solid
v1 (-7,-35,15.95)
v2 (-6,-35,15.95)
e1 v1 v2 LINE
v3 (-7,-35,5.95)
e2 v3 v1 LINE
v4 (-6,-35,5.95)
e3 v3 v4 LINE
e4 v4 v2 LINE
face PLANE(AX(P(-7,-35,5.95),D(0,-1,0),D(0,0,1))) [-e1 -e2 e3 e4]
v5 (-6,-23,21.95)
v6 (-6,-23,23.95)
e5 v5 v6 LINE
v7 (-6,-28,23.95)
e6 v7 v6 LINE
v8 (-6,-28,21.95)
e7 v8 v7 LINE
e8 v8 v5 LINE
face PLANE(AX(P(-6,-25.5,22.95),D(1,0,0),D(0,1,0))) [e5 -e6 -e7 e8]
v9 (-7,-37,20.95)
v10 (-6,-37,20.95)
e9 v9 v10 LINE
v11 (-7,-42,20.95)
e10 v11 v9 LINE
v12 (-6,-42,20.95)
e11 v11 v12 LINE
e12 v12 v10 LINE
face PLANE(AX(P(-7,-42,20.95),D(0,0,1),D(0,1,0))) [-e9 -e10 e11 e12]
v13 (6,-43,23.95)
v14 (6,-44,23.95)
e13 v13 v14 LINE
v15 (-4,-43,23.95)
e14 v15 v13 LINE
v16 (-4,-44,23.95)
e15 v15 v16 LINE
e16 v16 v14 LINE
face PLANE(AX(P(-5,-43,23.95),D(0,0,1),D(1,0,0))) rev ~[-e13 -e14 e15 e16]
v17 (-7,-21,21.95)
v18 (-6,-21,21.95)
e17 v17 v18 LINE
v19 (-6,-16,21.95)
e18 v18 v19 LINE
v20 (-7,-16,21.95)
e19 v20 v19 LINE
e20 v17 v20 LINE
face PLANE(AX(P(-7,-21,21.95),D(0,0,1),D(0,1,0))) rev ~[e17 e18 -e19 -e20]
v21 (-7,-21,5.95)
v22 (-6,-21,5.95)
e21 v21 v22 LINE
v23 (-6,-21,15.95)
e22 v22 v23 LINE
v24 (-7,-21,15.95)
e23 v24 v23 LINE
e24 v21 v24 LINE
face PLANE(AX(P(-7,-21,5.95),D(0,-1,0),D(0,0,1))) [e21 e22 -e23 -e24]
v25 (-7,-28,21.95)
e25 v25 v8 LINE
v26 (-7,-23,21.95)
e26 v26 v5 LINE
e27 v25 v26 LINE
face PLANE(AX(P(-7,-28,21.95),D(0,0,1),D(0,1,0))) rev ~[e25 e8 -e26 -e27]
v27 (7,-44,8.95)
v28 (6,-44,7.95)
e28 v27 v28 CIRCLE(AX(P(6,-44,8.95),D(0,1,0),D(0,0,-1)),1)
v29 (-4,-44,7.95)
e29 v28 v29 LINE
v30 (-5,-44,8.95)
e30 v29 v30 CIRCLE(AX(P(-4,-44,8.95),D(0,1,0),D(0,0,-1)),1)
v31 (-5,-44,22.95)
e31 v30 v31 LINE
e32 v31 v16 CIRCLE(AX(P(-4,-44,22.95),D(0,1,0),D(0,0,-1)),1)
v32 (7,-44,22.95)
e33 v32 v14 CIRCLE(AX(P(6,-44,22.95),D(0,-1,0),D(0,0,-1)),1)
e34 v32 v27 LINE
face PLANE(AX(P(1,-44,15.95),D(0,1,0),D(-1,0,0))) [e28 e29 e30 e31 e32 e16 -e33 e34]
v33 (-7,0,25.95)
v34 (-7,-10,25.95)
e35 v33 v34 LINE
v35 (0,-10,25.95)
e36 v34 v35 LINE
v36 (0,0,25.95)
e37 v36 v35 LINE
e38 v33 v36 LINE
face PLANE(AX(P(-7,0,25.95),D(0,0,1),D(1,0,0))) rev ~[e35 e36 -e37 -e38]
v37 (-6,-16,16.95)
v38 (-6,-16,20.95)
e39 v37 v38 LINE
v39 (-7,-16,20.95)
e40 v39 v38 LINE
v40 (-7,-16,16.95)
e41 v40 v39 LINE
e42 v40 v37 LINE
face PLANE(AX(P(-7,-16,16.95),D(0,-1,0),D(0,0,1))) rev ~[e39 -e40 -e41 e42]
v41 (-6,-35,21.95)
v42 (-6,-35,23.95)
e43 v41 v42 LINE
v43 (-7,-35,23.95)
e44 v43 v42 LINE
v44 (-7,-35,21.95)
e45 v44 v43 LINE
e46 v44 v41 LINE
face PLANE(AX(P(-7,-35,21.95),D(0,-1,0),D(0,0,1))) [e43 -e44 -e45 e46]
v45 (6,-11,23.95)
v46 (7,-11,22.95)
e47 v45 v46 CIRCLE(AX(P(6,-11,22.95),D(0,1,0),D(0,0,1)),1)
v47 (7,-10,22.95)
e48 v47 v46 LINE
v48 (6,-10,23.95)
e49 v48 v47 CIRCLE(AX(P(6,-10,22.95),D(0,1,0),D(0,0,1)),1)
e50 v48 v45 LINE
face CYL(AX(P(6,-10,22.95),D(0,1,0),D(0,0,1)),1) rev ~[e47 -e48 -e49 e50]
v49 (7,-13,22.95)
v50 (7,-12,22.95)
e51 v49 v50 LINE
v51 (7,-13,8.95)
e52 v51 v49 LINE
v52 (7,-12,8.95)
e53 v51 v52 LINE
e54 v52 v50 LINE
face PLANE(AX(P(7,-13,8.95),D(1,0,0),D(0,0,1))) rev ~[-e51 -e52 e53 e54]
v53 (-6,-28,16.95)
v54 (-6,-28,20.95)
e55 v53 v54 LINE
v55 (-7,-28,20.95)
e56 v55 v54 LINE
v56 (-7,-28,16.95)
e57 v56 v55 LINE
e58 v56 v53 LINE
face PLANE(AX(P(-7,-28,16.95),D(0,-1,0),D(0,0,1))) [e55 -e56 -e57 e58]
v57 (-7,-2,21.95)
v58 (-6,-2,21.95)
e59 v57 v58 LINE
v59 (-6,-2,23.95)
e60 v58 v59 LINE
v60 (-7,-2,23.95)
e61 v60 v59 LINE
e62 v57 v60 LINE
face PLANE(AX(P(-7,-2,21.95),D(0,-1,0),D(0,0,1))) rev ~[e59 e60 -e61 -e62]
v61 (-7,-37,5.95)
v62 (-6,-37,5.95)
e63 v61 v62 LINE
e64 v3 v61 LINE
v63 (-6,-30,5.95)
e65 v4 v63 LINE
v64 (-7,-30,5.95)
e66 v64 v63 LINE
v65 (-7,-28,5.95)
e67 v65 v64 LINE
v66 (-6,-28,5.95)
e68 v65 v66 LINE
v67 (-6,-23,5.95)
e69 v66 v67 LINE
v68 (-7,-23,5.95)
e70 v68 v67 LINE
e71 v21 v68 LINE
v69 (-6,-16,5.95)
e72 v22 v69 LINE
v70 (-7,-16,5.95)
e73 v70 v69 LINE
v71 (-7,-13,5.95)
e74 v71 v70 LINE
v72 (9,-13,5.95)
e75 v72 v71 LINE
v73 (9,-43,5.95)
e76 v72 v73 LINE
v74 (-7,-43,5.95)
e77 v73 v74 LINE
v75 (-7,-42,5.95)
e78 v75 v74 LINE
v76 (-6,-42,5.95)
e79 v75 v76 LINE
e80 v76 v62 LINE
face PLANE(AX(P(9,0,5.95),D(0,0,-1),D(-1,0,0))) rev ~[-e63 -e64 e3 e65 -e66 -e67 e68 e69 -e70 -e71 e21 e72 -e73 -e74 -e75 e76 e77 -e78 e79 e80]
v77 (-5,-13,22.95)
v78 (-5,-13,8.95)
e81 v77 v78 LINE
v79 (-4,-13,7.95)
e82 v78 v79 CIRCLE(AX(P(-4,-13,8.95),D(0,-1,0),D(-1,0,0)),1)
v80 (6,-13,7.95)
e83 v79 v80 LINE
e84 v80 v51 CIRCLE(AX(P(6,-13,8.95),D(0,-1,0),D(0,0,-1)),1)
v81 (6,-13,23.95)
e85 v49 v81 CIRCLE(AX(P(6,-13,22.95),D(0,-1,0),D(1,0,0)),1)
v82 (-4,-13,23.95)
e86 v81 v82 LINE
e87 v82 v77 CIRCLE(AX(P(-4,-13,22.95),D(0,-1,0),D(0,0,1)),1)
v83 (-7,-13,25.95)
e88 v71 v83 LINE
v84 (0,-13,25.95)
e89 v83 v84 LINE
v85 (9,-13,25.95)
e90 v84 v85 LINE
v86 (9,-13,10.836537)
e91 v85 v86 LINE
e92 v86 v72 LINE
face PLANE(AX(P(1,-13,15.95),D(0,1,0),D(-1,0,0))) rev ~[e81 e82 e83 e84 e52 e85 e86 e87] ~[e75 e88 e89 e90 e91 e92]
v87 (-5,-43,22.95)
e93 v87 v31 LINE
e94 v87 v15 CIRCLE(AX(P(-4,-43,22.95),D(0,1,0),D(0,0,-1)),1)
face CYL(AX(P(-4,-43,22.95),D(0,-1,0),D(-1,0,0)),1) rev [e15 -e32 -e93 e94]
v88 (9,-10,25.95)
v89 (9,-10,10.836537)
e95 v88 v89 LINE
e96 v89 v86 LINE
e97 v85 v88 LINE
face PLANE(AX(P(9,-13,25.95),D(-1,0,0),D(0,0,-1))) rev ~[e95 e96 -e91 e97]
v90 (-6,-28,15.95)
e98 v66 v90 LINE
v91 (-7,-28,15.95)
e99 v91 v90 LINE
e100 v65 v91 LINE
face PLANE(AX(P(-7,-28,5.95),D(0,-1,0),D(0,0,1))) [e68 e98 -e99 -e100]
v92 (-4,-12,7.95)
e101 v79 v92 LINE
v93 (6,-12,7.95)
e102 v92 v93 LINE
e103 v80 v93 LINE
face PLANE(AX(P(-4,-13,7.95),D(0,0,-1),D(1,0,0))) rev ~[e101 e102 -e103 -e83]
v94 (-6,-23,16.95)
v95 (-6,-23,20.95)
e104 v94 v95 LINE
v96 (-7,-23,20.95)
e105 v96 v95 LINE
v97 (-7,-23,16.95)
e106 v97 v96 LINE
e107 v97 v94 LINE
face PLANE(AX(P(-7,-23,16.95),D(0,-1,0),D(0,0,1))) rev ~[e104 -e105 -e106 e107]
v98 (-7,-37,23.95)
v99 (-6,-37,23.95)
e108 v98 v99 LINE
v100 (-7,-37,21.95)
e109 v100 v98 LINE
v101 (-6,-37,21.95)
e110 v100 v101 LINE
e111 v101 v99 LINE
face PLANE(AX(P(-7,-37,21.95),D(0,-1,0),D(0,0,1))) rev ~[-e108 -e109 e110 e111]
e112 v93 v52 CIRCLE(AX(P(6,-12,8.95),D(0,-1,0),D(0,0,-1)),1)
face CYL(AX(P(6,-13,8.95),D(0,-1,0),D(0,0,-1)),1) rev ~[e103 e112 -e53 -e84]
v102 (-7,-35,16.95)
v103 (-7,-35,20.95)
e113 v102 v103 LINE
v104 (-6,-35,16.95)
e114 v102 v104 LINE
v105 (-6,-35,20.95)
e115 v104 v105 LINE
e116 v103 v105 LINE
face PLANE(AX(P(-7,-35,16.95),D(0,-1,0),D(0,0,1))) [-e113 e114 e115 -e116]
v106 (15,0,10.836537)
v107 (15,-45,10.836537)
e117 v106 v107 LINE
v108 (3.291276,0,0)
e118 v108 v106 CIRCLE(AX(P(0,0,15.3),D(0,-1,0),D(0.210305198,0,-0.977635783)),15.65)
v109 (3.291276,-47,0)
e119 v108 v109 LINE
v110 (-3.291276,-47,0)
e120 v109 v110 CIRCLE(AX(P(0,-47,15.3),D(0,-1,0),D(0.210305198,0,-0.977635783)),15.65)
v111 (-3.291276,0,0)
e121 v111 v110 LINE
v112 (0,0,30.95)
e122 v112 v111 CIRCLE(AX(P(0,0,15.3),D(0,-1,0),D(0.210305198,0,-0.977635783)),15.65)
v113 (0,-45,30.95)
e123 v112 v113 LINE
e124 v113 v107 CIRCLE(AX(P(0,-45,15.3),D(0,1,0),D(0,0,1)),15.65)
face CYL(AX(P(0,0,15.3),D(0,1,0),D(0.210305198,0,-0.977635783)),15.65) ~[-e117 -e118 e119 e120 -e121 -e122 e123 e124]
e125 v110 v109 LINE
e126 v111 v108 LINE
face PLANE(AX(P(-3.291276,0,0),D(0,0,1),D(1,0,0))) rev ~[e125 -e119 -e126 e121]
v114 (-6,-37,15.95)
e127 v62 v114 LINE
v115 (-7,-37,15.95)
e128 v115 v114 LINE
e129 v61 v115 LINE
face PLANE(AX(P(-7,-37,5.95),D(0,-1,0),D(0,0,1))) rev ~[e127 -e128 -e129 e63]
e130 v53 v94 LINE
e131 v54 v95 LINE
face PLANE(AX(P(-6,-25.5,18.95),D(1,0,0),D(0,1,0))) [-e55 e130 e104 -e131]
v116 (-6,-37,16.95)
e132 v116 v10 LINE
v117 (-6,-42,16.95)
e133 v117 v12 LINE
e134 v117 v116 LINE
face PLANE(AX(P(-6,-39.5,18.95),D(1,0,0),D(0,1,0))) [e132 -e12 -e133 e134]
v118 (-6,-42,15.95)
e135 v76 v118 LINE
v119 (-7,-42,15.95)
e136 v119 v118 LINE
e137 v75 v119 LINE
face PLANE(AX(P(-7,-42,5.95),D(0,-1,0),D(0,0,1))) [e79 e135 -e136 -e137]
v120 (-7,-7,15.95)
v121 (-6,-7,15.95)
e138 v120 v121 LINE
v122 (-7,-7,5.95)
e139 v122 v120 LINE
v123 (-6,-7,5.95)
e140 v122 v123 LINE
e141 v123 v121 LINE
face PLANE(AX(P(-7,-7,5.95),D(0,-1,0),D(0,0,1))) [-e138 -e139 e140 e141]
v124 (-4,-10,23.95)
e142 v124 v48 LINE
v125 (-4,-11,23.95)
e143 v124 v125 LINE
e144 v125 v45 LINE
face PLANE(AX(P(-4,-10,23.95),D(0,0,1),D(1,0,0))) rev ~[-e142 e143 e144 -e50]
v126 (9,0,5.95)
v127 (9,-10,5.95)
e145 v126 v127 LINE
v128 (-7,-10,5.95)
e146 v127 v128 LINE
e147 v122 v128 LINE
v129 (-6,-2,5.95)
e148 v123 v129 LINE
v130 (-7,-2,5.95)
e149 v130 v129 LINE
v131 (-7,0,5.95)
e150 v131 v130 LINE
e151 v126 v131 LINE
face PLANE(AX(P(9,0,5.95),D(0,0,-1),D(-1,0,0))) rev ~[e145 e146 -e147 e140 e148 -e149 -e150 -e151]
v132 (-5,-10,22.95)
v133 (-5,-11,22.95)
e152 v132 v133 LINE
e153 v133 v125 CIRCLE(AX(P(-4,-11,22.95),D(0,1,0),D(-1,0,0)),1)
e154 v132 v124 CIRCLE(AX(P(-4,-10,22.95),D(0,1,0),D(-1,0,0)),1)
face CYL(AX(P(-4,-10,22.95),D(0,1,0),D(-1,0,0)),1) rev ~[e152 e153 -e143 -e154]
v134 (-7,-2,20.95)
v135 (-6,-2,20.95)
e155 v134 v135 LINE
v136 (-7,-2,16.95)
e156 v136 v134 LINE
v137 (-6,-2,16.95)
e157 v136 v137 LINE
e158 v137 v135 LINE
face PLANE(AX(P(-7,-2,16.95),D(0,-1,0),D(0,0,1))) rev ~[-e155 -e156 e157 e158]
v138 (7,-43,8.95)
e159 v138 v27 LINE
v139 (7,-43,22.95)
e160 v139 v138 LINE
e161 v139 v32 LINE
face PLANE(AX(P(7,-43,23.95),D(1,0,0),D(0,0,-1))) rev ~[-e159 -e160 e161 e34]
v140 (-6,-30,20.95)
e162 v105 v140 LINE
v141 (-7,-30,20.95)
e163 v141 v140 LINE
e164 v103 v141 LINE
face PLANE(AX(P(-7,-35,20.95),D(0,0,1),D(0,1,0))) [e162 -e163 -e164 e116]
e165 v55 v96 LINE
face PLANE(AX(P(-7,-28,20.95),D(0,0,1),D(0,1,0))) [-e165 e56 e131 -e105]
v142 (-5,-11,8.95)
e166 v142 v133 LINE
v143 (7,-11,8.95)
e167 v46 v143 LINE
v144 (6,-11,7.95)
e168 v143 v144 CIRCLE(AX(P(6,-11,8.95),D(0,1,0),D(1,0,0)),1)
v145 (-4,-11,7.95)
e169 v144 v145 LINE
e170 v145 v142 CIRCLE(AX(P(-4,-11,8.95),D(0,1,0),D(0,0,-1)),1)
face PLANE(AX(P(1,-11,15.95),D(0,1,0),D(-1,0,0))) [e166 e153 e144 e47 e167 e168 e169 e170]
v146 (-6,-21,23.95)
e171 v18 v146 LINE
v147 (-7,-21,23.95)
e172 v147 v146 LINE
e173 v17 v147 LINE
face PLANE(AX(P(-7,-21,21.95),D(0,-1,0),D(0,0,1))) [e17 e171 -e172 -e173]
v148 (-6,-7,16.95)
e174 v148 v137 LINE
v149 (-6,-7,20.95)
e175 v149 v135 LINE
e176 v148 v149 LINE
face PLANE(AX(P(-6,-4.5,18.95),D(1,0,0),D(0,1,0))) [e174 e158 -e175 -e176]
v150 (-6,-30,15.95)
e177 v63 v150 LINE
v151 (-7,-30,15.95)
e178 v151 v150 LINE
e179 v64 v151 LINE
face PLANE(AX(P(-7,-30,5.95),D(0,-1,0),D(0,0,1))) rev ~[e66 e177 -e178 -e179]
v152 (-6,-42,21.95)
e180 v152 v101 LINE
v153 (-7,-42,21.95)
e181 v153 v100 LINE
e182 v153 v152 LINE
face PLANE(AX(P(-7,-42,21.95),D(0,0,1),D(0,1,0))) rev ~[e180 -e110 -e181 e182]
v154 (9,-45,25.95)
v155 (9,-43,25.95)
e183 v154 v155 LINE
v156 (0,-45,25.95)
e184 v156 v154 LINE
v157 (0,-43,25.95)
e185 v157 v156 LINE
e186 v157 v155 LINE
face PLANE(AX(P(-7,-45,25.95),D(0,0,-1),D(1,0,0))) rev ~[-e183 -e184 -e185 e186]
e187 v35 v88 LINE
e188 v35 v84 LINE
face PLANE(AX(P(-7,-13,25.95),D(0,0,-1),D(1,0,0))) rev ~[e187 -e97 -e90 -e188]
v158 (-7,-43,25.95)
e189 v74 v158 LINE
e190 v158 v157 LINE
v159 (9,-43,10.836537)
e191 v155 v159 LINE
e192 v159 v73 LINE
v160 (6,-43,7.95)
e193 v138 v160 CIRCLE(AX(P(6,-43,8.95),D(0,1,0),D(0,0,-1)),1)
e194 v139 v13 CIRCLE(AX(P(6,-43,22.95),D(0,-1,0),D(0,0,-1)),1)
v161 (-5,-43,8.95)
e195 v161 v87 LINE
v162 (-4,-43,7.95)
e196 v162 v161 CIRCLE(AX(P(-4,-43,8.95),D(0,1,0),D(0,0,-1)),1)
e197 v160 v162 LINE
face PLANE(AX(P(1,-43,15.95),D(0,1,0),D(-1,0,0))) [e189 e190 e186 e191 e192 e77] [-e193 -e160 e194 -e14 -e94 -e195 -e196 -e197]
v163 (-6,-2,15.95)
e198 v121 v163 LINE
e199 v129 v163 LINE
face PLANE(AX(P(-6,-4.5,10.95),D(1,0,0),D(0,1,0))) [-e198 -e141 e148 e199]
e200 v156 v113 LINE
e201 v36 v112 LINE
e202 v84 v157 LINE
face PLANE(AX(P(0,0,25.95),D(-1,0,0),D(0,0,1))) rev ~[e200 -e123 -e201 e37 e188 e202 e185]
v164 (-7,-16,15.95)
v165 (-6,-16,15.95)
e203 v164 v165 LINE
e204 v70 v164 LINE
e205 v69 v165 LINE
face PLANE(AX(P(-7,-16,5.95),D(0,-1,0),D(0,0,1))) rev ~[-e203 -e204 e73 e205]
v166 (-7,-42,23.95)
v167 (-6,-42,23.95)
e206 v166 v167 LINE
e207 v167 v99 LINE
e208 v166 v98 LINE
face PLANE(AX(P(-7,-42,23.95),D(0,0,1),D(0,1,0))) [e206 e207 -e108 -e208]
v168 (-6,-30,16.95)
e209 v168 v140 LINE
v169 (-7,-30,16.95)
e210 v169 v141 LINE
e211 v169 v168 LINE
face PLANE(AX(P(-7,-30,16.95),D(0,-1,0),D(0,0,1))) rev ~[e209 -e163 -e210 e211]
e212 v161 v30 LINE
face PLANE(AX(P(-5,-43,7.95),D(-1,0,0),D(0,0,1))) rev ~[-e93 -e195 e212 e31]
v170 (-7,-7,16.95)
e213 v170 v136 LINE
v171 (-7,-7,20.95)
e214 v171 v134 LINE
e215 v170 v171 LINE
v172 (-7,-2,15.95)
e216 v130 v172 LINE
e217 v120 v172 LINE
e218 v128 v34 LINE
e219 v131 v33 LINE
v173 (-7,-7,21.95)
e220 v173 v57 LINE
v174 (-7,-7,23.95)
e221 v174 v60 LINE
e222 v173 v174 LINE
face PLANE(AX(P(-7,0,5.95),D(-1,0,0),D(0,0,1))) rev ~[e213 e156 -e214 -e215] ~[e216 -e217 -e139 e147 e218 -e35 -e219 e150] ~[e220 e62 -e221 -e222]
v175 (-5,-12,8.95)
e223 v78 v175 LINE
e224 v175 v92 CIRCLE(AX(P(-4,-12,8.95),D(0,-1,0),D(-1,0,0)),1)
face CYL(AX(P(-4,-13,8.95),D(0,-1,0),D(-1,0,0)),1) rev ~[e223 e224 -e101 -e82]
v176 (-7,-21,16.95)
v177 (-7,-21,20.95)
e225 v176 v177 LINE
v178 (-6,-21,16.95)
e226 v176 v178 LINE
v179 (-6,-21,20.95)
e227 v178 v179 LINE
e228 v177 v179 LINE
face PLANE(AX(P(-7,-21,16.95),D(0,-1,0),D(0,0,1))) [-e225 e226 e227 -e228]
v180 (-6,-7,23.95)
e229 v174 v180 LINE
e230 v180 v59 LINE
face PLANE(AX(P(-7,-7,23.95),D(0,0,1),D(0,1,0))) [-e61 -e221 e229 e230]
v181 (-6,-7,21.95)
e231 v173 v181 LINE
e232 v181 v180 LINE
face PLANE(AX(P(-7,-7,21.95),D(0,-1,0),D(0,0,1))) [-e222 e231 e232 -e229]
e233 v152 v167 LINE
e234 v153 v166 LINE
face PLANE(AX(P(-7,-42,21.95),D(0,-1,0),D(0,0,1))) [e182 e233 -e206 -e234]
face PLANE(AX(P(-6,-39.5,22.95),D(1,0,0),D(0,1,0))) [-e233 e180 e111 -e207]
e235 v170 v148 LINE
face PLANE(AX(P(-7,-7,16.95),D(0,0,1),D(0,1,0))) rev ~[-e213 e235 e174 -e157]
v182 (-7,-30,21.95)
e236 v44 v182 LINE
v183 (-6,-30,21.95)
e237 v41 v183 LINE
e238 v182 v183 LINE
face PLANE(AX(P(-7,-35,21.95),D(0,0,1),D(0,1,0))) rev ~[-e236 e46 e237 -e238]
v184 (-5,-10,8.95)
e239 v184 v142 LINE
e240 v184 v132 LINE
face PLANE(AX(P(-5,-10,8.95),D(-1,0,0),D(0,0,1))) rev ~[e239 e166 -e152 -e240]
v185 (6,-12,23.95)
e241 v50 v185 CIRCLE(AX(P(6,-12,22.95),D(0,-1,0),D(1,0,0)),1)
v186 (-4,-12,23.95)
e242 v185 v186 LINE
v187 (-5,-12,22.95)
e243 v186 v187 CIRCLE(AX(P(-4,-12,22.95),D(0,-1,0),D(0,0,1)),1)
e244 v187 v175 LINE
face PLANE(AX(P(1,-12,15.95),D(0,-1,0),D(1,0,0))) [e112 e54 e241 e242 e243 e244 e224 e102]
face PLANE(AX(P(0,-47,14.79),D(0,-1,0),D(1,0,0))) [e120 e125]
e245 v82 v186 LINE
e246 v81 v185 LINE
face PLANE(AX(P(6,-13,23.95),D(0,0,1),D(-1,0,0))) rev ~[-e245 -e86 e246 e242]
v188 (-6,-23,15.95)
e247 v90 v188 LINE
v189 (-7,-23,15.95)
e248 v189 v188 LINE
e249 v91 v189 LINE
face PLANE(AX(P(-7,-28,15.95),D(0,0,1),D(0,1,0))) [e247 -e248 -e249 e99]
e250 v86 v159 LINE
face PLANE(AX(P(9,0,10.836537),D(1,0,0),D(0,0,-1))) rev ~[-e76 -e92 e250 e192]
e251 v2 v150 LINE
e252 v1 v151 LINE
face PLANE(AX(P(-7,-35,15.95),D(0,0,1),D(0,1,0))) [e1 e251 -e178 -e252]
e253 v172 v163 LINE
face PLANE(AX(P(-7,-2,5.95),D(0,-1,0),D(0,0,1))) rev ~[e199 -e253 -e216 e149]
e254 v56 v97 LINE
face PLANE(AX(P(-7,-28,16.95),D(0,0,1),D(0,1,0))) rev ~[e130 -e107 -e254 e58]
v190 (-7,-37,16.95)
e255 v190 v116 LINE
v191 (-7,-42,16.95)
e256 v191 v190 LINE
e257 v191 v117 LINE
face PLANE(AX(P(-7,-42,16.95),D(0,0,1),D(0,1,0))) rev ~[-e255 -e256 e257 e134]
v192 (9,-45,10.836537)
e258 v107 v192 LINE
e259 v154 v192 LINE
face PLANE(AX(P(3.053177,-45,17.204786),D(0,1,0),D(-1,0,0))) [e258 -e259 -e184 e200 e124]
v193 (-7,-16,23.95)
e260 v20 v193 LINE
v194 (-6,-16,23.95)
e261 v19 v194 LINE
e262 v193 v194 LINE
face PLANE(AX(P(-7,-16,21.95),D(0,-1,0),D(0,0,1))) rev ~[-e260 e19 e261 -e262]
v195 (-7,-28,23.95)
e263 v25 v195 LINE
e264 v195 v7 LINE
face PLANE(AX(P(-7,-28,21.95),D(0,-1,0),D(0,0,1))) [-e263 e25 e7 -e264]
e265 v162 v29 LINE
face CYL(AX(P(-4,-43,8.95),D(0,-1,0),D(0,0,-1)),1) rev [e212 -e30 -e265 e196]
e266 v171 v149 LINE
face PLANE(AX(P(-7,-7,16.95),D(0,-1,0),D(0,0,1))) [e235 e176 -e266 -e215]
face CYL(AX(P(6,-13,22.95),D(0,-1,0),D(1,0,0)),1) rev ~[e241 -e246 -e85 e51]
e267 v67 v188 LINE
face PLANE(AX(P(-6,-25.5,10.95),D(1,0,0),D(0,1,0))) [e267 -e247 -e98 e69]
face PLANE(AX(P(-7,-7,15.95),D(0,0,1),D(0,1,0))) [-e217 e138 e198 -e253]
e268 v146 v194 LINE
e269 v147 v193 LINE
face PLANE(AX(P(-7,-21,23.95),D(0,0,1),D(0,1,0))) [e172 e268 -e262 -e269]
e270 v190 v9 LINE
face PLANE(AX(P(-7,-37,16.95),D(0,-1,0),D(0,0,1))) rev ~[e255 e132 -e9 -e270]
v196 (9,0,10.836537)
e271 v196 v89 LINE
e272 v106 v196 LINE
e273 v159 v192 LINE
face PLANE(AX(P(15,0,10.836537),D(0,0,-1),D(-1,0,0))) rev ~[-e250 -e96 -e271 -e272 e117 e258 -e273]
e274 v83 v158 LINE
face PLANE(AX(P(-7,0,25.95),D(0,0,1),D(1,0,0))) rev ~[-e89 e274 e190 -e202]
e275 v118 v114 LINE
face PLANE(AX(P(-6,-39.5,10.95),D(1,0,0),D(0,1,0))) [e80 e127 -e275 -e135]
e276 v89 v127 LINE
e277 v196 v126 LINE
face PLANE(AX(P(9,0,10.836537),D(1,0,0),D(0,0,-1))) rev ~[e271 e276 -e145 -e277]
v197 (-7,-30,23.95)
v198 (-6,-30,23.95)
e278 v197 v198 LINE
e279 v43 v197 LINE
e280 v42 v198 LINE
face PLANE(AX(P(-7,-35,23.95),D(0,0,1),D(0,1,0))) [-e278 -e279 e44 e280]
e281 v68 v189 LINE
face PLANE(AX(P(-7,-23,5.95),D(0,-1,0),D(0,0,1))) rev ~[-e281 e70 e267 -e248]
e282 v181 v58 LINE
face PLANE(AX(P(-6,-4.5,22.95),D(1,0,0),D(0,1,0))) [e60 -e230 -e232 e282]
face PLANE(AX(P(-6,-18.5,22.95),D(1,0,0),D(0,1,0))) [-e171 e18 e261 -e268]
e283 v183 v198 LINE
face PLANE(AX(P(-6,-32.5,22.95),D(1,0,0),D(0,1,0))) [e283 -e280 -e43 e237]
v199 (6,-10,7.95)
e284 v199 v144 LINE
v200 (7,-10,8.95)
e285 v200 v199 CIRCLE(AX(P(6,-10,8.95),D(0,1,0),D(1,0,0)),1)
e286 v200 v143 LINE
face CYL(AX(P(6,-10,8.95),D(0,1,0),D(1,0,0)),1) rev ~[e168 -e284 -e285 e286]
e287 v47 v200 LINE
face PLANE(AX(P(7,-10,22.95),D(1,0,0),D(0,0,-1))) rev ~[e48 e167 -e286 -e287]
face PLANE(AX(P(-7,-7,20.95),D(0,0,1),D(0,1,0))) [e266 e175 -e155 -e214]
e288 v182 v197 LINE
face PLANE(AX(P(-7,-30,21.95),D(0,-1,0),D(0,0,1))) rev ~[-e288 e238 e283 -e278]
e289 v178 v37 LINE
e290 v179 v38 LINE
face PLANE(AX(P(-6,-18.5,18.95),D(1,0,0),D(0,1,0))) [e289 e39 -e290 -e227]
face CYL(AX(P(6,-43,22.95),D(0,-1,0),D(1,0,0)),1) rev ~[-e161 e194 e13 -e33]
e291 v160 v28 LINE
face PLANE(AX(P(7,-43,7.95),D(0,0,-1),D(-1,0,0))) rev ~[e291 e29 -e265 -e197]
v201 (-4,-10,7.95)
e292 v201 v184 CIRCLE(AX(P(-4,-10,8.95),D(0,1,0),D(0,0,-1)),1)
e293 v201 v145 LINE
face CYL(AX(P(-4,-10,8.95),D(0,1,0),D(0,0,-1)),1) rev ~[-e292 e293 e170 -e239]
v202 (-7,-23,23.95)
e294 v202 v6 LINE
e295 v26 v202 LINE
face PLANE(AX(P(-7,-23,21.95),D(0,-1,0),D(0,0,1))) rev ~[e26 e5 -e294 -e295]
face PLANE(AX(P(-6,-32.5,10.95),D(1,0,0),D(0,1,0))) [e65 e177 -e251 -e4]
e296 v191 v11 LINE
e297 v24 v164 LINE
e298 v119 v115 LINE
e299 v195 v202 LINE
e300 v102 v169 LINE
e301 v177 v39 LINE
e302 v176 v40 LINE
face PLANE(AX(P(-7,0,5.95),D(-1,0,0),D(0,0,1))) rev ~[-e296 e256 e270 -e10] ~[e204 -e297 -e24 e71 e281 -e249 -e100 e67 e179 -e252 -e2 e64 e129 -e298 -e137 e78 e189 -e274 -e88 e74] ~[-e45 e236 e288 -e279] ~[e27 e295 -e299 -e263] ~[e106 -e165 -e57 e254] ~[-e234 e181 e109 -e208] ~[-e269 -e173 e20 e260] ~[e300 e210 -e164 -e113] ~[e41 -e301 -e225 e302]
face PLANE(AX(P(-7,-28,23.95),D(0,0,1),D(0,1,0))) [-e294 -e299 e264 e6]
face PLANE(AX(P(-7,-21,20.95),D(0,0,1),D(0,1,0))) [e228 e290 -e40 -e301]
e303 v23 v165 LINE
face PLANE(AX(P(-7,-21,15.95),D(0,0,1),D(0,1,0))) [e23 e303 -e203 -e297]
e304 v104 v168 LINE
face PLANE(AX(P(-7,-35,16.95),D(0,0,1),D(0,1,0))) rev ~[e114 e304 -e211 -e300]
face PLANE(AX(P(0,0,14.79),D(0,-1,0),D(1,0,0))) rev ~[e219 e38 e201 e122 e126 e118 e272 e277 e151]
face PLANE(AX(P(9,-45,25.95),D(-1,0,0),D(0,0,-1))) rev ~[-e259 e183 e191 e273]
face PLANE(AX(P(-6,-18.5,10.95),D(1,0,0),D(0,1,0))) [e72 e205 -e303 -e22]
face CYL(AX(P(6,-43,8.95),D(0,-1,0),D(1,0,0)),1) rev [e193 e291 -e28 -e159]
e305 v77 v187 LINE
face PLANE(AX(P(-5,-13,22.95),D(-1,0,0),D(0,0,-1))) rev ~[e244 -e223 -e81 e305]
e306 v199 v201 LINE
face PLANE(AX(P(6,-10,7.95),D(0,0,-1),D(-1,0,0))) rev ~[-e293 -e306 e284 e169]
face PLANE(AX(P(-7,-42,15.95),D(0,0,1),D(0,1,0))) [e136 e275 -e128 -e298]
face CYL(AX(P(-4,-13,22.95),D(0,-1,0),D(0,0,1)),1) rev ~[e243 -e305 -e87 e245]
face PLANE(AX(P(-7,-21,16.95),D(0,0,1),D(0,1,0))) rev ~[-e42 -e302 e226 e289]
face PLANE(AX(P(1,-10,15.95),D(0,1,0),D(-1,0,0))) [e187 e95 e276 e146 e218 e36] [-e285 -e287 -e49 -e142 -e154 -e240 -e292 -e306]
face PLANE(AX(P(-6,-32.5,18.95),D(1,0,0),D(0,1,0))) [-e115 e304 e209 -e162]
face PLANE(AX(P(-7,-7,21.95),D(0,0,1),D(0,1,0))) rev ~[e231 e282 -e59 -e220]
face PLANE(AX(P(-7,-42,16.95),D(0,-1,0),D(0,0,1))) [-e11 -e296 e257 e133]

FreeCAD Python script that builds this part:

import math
import FreeCAD as App
import Part
import Sketcher
from FreeCAD import Vector


def edges_at(feature, points):
    """Names of the edges that pass closest to the given points."""
    edges = feature.Shape.Edges
    near = lambda p: min(range(len(edges)), key=lambda i: edges[i].distToShape(Part.Vertex(*p))[0])
    return sorted({f"Edge{near(p) + 1}" for p in points})

doc = App.newDocument("Part")
body = doc.addObject("PartDesign::Body", "Body")

sketch1 = body.newObject("Sketcher::SketchObject", "Sketch")
sketch1.AttachmentSupport = (doc.getObject("XZ_Plane"), [""])
sketch1.MapMode = "FlatFace"
sketch1.addGeometry([
    Part.LineSegment(Vector(-3, 0, 0), Vector(3, 0, 0)),
    Part.ArcOfCircle(Part.Circle(Vector(0, 15, 0), Vector(0, 0, 1), 16), math.radians(-78), math.radians(258)),
], False)
sketch1.addConstraint([
    Sketcher.Constraint("Coincident", 0, 1, 1, 2),
    Sketcher.Constraint("Coincident", 1, 1, 0, 2),
    Sketcher.Constraint("Horizontal", 0),
    Sketcher.Constraint("Symmetric", 0, 1, 1, 1, -1, 1),
    Sketcher.Constraint("Radius", 1, 15.65),
    Sketcher.Constraint("DistanceY", -1, 1, 1, 3, 15.3),
])
pad1 = body.newObject("PartDesign::Pad", "Pad")
pad1.Profile = sketch1
pad1.Length = 47

sketch2 = body.newObject("Sketcher::SketchObject", "Sketch001")
sketch2.AttachmentSupport = (doc.getObject("XZ_Plane"), [""])
sketch2.MapMode = "FlatFace"
sketch2.addGeometry([
    Part.LineSegment(Vector(0, 25.9, 0), Vector(0, 30.9, 0)),
    Part.ArcOfCircle(Part.Circle(Vector(0, 15.3, 0), Vector(0, 0, 1), 15.7), math.radians(-17), math.radians(90)),
    Part.LineSegment(Vector(15, 10.8, 0), Vector(9, 10.8, 0)),
    Part.LineSegment(Vector(9, 10.8, 0), Vector(9, 6, 0)),
    Part.LineSegment(Vector(9, 6, 0), Vector(-7, 6, 0)),
    Part.LineSegment(Vector(-7, 6, 0), Vector(-7, 25.9, 0)),
    Part.LineSegment(Vector(-7, 25.9, 0), Vector(0, 25.9, 0)),
], False)
sketch2.addConstraint([
    Sketcher.Constraint("Coincident", 0, 2, 1, 2),
    Sketcher.Constraint("Coincident", 1, 1, 2, 1),
    Sketcher.Constraint("Coincident", 2, 2, 3, 1),
    Sketcher.Constraint("Coincident", 3, 2, 4, 1),
    Sketcher.Constraint("Coincident", 4, 2, 5, 1),
    Sketcher.Constraint("Coincident", 5, 2, 6, 1),
    Sketcher.Constraint("Coincident", 6, 2, 0, 1),
    Sketcher.Constraint("Vertical", 0),
    Sketcher.Constraint("Horizontal", 2),
    Sketcher.Constraint("Vertical", 3),
    Sketcher.Constraint("Horizontal", 4),
    Sketcher.Constraint("Vertical", 5),
    Sketcher.Constraint("Horizontal", 6),
    Sketcher.Constraint("PointOnObject", 1, 3, -2),
    Sketcher.Constraint("PointOnObject", 0, 2, -2),
    Sketcher.Constraint("DistanceX", 2, 2, 2, 1, 6.0),
    Sketcher.Constraint("DistanceX", 4, 2, 4, 1, 16.0),
    Sketcher.Constraint("DistanceX", 6, 1, 6, 2, 7.0),
    Sketcher.Constraint("DistanceY", 0, 1, 0, 2, 5.0),
    Sketcher.Constraint("DistanceY", 5, 1, 5, 2, 20.0),
    Sketcher.Constraint("Radius", 1, 15.65),
    Sketcher.Constraint("DistanceY", -1, 1, 1, 3, 15.3),
])
pocket1 = body.newObject("PartDesign::Pocket", "Pocket")
pocket1.Profile = sketch2
pocket1.Length = 45
pocket1.Reversed = True

sketch3 = body.newObject("Sketcher::SketchObject", "Sketch002")
sketch3.AttachmentSupport = (doc.getObject("XZ_Plane"), [""])
sketch3.MapMode = "FlatFace"
sketch3.AttachmentOffset = App.Placement(Vector(0, 0, 45), App.Rotation())
sketch3.addGeometry([
    Part.LineSegment(Vector(9, 26, 0), Vector(9, 6, 0)),
    Part.LineSegment(Vector(9, 6, 0), Vector(-7, 6, 0)),
    Part.LineSegment(Vector(-7, 6, 0), Vector(-7, 26, 0)),
    Part.LineSegment(Vector(-7, 26, 0), Vector(9, 26, 0)),
], False)
sketch3.addConstraint([
    Sketcher.Constraint("Coincident", 0, 2, 1, 1),
    Sketcher.Constraint("Coincident", 1, 2, 2, 1),
    Sketcher.Constraint("Coincident", 2, 2, 3, 1),
    Sketcher.Constraint("Coincident", 3, 2, 0, 1),
    Sketcher.Constraint("Vertical", 0),
    Sketcher.Constraint("Horizontal", 1),
    Sketcher.Constraint("Vertical", 2),
    Sketcher.Constraint("Horizontal", 3),
    Sketcher.Constraint("DistanceX", 1, 2, 1, 1, 16.0),
    Sketcher.Constraint("DistanceY", 0, 2, 0, 1, 20.0),
    Sketcher.Constraint("DistanceX", -1, 1, 0, 2, 9.0),
    Sketcher.Constraint("DistanceY", -1, 1, 0, 2, 5.95),
])
pad2 = body.newObject("PartDesign::Pad", "Pad001")
pad2.Profile = sketch3
pad2.Length = 2
pad2.Reversed = True

sketch4 = body.newObject("Sketcher::SketchObject", "Sketch003")
sketch4.AttachmentSupport = (doc.getObject("XZ_Plane"), [""])
sketch4.MapMode = "FlatFace"
sketch4.AttachmentOffset = App.Placement(Vector(0, 0, 43), App.Rotation())
sketch4.addGeometry([
    Part.LineSegment(Vector(7, 24, 0), Vector(7, 8, 0)),
    Part.LineSegment(Vector(7, 8, 0), Vector(-5, 8, 0)),
    Part.LineSegment(Vector(-5, 8, 0), Vector(-5, 24, 0)),
    Part.LineSegment(Vector(-5, 24, 0), Vector(7, 24, 0)),
], False)
sketch4.addConstraint([
    Sketcher.Constraint("Coincident", 0, 2, 1, 1),
    Sketcher.Constraint("Coincident", 1, 2, 2, 1),
    Sketcher.Constraint("Coincident", 2, 2, 3, 1),
    Sketcher.Constraint("Coincident", 3, 2, 0, 1),
    Sketcher.Constraint("Vertical", 0),
    Sketcher.Constraint("Horizontal", 1),
    Sketcher.Constraint("Vertical", 2),
    Sketcher.Constraint("Horizontal", 3),
    Sketcher.Constraint("DistanceX", 1, 2, 1, 1, 12.0),
    Sketcher.Constraint("DistanceY", 0, 2, 0, 1, 16.0),
    Sketcher.Constraint("DistanceX", -1, 1, 0, 2, 7.0),
    Sketcher.Constraint("DistanceY", -1, 1, 0, 2, 7.95),
])
pocket2 = body.newObject("PartDesign::Pocket", "Pocket001")
pocket2.Profile = sketch4
pocket2.Length = 1
pocket2.Reversed = True
doc.recompute()

fillet = body.newObject("PartDesign::Fillet", "Fillet")
fillet.Base = (pocket2, edges_at(pocket2, [
    (7, -43.5, 23.95),
    (-5, -43.5, 23.95),
    (7, -43.5, 7.95),
    (-5, -43.5, 7.95),
]))
fillet.Radius = 1

sketch5 = body.newObject("Sketcher::SketchObject", "Sketch004")
sketch5.AttachmentSupport = (doc.getObject("YZ_Plane"), [""])
sketch5.MapMode = "FlatFace"
sketch5.AttachmentOffset = App.Placement(Vector(0, 0, -7), App.Rotation())
sketch5.addGeometry([
    Part.LineSegment(Vector(-42, 15.9, 0), Vector(-42, 6, 0)),
    Part.LineSegment(Vector(-42, 6, 0), Vector(-37, 6, 0)),
    Part.LineSegment(Vector(-37, 6, 0), Vector(-37, 15.9, 0)),
    Part.LineSegment(Vector(-37, 15.9, 0), Vector(-42, 15.9, 0)),
    Part.LineSegment(Vector(-42, 20.9, 0), Vector(-42, 16.9, 0)),
    Part.LineSegment(Vector(-42, 16.9, 0), Vector(-37, 16.9, 0)),
    Part.LineSegment(Vector(-37, 16.9, 0), Vector(-37, 20.9, 0)),
    Part.LineSegment(Vector(-37, 20.9, 0), Vector(-42, 20.9, 0)),
    Part.LineSegment(Vector(-42, 23.9, 0), Vector(-42, 21.9, 0)),
    Part.LineSegment(Vector(-42, 21.9, 0), Vector(-37, 21.9, 0)),
    Part.LineSegment(Vector(-37, 21.9, 0), Vector(-37, 23.9, 0)),
    Part.LineSegment(Vector(-37, 23.9, 0), Vector(-42, 23.9, 0)),
    Part.LineSegment(Vector(-35, 23.9, 0), Vector(-35, 21.9, 0)),
    Part.LineSegment(Vector(-35, 21.9, 0), Vector(-30, 21.9, 0)),
    Part.LineSegment(Vector(-30, 21.9, 0), Vector(-30, 23.9, 0)),
    Part.LineSegment(Vector(-30, 23.9, 0), Vector(-35, 23.9, 0)),
    Part.LineSegment(Vector(-35, 20.9, 0), Vector(-35, 16.9, 0)),
    Part.LineSegment(Vector(-35, 16.9, 0), Vector(-30, 16.9, 0)),
    Part.LineSegment(Vector(-30, 16.9, 0), Vector(-30, 20.9, 0)),
    Part.LineSegment(Vector(-30, 20.9, 0), Vector(-35, 20.9, 0)),
    Part.LineSegment(Vector(-35, 15.9, 0), Vector(-35, 6, 0)),
    Part.LineSegment(Vector(-35, 6, 0), Vector(-30, 6, 0)),
    Part.LineSegment(Vector(-30, 6, 0), Vector(-30, 15.9, 0)),
    Part.LineSegment(Vector(-30, 15.9, 0), Vector(-35, 15.9, 0)),
    Part.LineSegment(Vector(-28, 23.9, 0), Vector(-28, 21.9, 0)),
    Part.LineSegment(Vector(-28, 21.9, 0), Vector(-23, 21.9, 0)),
    Part.LineSegment(Vector(-23, 21.9, 0), Vector(-23, 23.9, 0)),
    Part.LineSegment(Vector(-23, 23.9, 0), Vector(-28, 23.9, 0)),
    Part.LineSegment(Vector(-28, 20.9, 0), Vector(-28, 16.9, 0)),
    Part.LineSegment(Vector(-28, 16.9, 0), Vector(-23, 16.9, 0)),
    Part.LineSegment(Vector(-23, 16.9, 0), Vector(-23, 20.9, 0)),
    Part.LineSegment(Vector(-23, 20.9, 0), Vector(-28, 20.9, 0)),
    Part.LineSegment(Vector(-28, 15.9, 0), Vector(-28, 6, 0)),
    Part.LineSegment(Vector(-28, 6, 0), Vector(-23, 6, 0)),
    Part.LineSegment(Vector(-23, 6, 0), Vector(-23, 15.9, 0)),
    Part.LineSegment(Vector(-23, 15.9, 0), Vector(-28, 15.9, 0)),
    Part.LineSegment(Vector(-21, 23.9, 0), Vector(-21, 21.9, 0)),
    Part.LineSegment(Vector(-21, 21.9, 0), Vector(-16, 21.9, 0)),
    Part.LineSegment(Vector(-16, 21.9, 0), Vector(-16, 23.9, 0)),
    Part.LineSegment(Vector(-16, 23.9, 0), Vector(-21, 23.9, 0)),
    Part.LineSegment(Vector(-21, 20.9, 0), Vector(-21, 16.9, 0)),
    Part.LineSegment(Vector(-21, 16.9, 0), Vector(-16, 16.9, 0)),
    Part.LineSegment(Vector(-16, 16.9, 0), Vector(-16, 20.9, 0)),
    Part.LineSegment(Vector(-16, 20.9, 0), Vector(-21, 20.9, 0)),
    Part.LineSegment(Vector(-21, 15.9, 0), Vector(-21, 6, 0)),
    Part.LineSegment(Vector(-21, 6, 0), Vector(-16, 6, 0)),
    Part.LineSegment(Vector(-16, 6, 0), Vector(-16, 15.9, 0)),
    Part.LineSegment(Vector(-16, 15.9, 0), Vector(-21, 15.9, 0)),
    Part.LineSegment(Vector(-7, 23.9, 0), Vector(-7, 21.9, 0)),
    Part.LineSegment(Vector(-7, 21.9, 0), Vector(-2, 21.9, 0)),
    Part.LineSegment(Vector(-2, 21.9, 0), Vector(-2, 23.9, 0)),
    Part.LineSegment(Vector(-2, 23.9, 0), Vector(-7, 23.9, 0)),
    Part.LineSegment(Vector(-7, 20.9, 0), Vector(-7, 16.9, 0)),
    Part.LineSegment(Vector(-7, 16.9, 0), Vector(-2, 16.9, 0)),
    Part.LineSegment(Vector(-2, 16.9, 0), Vector(-2, 20.9, 0)),
    Part.LineSegment(Vector(-2, 20.9, 0), Vector(-7, 20.9, 0)),
    Part.LineSegment(Vector(-7, 15.9, 0), Vector(-7, 6, 0)),
    Part.LineSegment(Vector(-7, 6, 0), Vector(-2, 6, 0)),
    Part.LineSegment(Vector(-2, 6, 0), Vector(-2, 15.9, 0)),
    Part.LineSegment(Vector(-2, 15.9, 0), Vector(-7, 15.9, 0)),
], False)
sketch5.addConstraint([
    Sketcher.Constraint("Coincident", 0, 2, 1, 1),
    Sketcher.Constraint("Coincident", 1, 2, 2, 1),
    Sketcher.Constraint("Coincident", 2, 2, 3, 1),
    Sketcher.Constraint("Coincident", 3, 2, 0, 1),
    Sketcher.Constraint("Coincident", 4, 2, 5, 1),
    Sketcher.Constraint("Coincident", 5, 2, 6, 1),
    Sketcher.Constraint("Coincident", 6, 2, 7, 1),
    Sketcher.Constraint("Coincident", 7, 2, 4, 1),
    Sketcher.Constraint("Coincident", 8, 2, 9, 1),
    Sketcher.Constraint("Coincident", 9, 2, 10, 1),
    Sketcher.Constraint("Coincident", 10, 2, 11, 1),
    Sketcher.Constraint("Coincident", 11, 2, 8, 1),
    Sketcher.Constraint("Coincident", 12, 2, 13, 1),
    Sketcher.Constraint("Coincident", 13, 2, 14, 1),
    Sketcher.Constraint("Coincident", 14, 2, 15, 1),
    Sketcher.Constraint("Coincident", 15, 2, 12, 1),
    Sketcher.Constraint("Coincident", 16, 2, 17, 1),
    Sketcher.Constraint("Coincident", 17, 2, 18, 1),
    Sketcher.Constraint("Coincident", 18, 2, 19, 1),
    Sketcher.Constraint("Coincident", 19, 2, 16, 1),
    Sketcher.Constraint("Coincident", 20, 2, 21, 1),
    Sketcher.Constraint("Coincident", 21, 2, 22, 1),
    Sketcher.Constraint("Coincident", 22, 2, 23, 1),
    Sketcher.Constraint("Coincident", 23, 2, 20, 1),
    Sketcher.Constraint("Coincident", 24, 2, 25, 1),
    Sketcher.Constraint("Coincident", 25, 2, 26, 1),
    Sketcher.Constraint("Coincident", 26, 2, 27, 1),
    Sketcher.Constraint("Coincident", 27, 2, 24, 1),
    Sketcher.Constraint("Coincident", 28, 2, 29, 1),
    Sketcher.Constraint("Coincident", 29, 2, 30, 1),
    Sketcher.Constraint("Coincident", 30, 2, 31, 1),
    Sketcher.Constraint("Coincident", 31, 2, 28, 1),
    Sketcher.Constraint("Coincident", 32, 2, 33, 1),
    Sketcher.Constraint("Coincident", 33, 2, 34, 1),
    Sketcher.Constraint("Coincident", 34, 2, 35, 1),
    Sketcher.Constraint("Coincident", 35, 2, 32, 1),
    Sketcher.Constraint("Coincident", 36, 2, 37, 1),
    Sketcher.Constraint("Coincident", 37, 2, 38, 1),
    Sketcher.Constraint("Coincident", 38, 2, 39, 1),
    Sketcher.Constraint("Coincident", 39, 2, 36, 1),
    Sketcher.Constraint("Coincident", 40, 2, 41, 1),
    Sketcher.Constraint("Coincident", 41, 2, 42, 1),
    Sketcher.Constraint("Coincident", 42, 2, 43, 1),
    Sketcher.Constraint("Coincident", 43, 2, 40, 1),
    Sketcher.Constraint("Coincident", 44, 2, 45, 1),
    Sketcher.Constraint("Coincident", 45, 2, 46, 1),
    Sketcher.Constraint("Coincident", 46, 2, 47, 1),
    Sketcher.Constraint("Coincident", 47, 2, 44, 1),
    Sketcher.Constraint("Coincident", 48, 2, 49, 1),
    Sketcher.Constraint("Coincident", 49, 2, 50, 1),
    Sketcher.Constraint("Coincident", 50, 2, 51, 1),
    Sketcher.Constraint("Coincident", 51, 2, 48, 1),
    Sketcher.Constraint("Coincident", 52, 2, 53, 1),
    Sketcher.Constraint("Coincident", 53, 2, 54, 1),
    Sketcher.Constraint("Coincident", 54, 2, 55, 1),
    Sketcher.Constraint("Coincident", 55, 2, 52, 1),
    Sketcher.Constraint("Coincident", 56, 2, 57, 1),
    Sketcher.Constraint("Coincident", 57, 2, 58, 1),
    Sketcher.Constraint("Coincident", 58, 2, 59, 1),
    Sketcher.Constraint("Coincident", 59, 2, 56, 1),
    Sketcher.Constraint("Vertical", 0),
    Sketcher.Constraint("Horizontal", 1),
    Sketcher.Constraint("Vertical", 2),
    Sketcher.Constraint("Horizontal", 3),
    Sketcher.Constraint("Vertical", 4),
    Sketcher.Constraint("Horizontal", 5),
    Sketcher.Constraint("Vertical", 6),
    Sketcher.Constraint("Horizontal", 7),
    Sketcher.Constraint("Vertical", 8),
    Sketcher.Constraint("Horizontal", 9),
    Sketcher.Constraint("Vertical", 10),
    Sketcher.Constraint("Horizontal", 11),
    Sketcher.Constraint("Vertical", 12),
    Sketcher.Constraint("Horizontal", 13),
    Sketcher.Constraint("Vertical", 14),
    Sketcher.Constraint("Horizontal", 15),
    Sketcher.Constraint("Vertical", 16),
    Sketcher.Constraint("Horizontal", 17),
    Sketcher.Constraint("Vertical", 18),
    Sketcher.Constraint("Horizontal", 19),
    Sketcher.Constraint("Vertical", 20),
    Sketcher.Constraint("Horizontal", 21),
    Sketcher.Constraint("Vertical", 22),
    Sketcher.Constraint("Horizontal", 23),
    Sketcher.Constraint("Vertical", 24),
    Sketcher.Constraint("Horizontal", 25),
    Sketcher.Constraint("Vertical", 26),
    Sketcher.Constraint("Horizontal", 27),
    Sketcher.Constraint("Vertical", 28),
    Sketcher.Constraint("Horizontal", 29),
    Sketcher.Constraint("Vertical", 30),
    Sketcher.Constraint("Horizontal", 31),
    Sketcher.Constraint("Vertical", 32),
    Sketcher.Constraint("Horizontal", 33),
    Sketcher.Constraint("Vertical", 34),
    Sketcher.Constraint("Horizontal", 35),
    Sketcher.Constraint("Vertical", 36),
    Sketcher.Constraint("Horizontal", 37),
    Sketcher.Constraint("Vertical", 38),
    Sketcher.Constraint("Horizontal", 39),
    Sketcher.Constraint("Vertical", 40),
    Sketcher.Constraint("Horizontal", 41),
    Sketcher.Constraint("Vertical", 42),
    Sketcher.Constraint("Horizontal", 43),
    Sketcher.Constraint("Vertical", 44),
    Sketcher.Constraint("Horizontal", 45),
    Sketcher.Constraint("Vertical", 46),
    Sketcher.Constraint("Horizontal", 47),
    Sketcher.Constraint("Vertical", 48),
    Sketcher.Constraint("Horizontal", 49),
    Sketcher.Constraint("Vertical", 50),
    Sketcher.Constraint("Horizontal", 51),
    Sketcher.Constraint("Vertical", 52),
    Sketcher.Constraint("Horizontal", 53),
    Sketcher.Constraint("Vertical", 54),
    Sketcher.Constraint("Horizontal", 55),
    Sketcher.Constraint("Vertical", 56),
    Sketcher.Constraint("Horizontal", 57),
    Sketcher.Constraint("Vertical", 58),
    Sketcher.Constraint("Horizontal", 59),
    Sketcher.Constraint("Horizontal", 9, 2, 12, 2),
    Sketcher.Constraint("Horizontal", 11, 2, 14, 2),
    Sketcher.Constraint("Horizontal", 5, 2, 16, 2),
    Sketcher.Constraint("Horizontal", 7, 2, 18, 2),
    Sketcher.Constraint("Horizontal", 1, 2, 20, 2),
    Sketcher.Constraint("Horizontal", 3, 2, 22, 2),
    Sketcher.Constraint("Horizontal", 13, 2, 24, 2),
    Sketcher.Constraint("Horizontal", 15, 2, 26, 2),
    Sketcher.Constraint("Horizontal", 17, 2, 28, 2),
    Sketcher.Constraint("Horizontal", 19, 2, 30, 2),
    Sketcher.Constraint("Horizontal", 21, 2, 32, 2),
    Sketcher.Constraint("Horizontal", 23, 2, 34, 2),
    Sketcher.Constraint("Horizontal", 25, 2, 36, 2),
    Sketcher.Constraint("Horizontal", 27, 2, 38, 2),
    Sketcher.Constraint("Horizontal", 29, 2, 40, 2),
    Sketcher.Constraint("Horizontal", 31, 2, 42, 2),
    Sketcher.Constraint("Horizontal", 33, 2, 44, 2),
    Sketcher.Constraint("Horizontal", 35, 2, 46, 2),
    Sketcher.Constraint("Horizontal", 37, 2, 48, 2),
    Sketcher.Constraint("Horizontal", 39, 2, 50, 2),
    Sketcher.Constraint("Horizontal", 41, 2, 52, 2),
    Sketcher.Constraint("Horizontal", 43, 2, 54, 2),
    Sketcher.Constraint("Horizontal", 45, 2, 56, 2),
    Sketcher.Constraint("Horizontal", 47, 2, 58, 2),
    Sketcher.Constraint("Vertical", 3, 2, 4, 2),
    Sketcher.Constraint("Vertical", 2, 2, 5, 2),
    Sketcher.Constraint("Vertical", 7, 2, 8, 2),
    Sketcher.Constraint("Vertical", 6, 2, 9, 2),
    Sketcher.Constraint("Vertical", 15, 2, 16, 2),
    Sketcher.Constraint("Vertical", 14, 2, 17, 2),
    Sketcher.Constraint("Vertical", 19, 2, 20, 2),
    Sketcher.Constraint("Vertical", 18, 2, 21, 2),
    Sketcher.Constraint("Vertical", 27, 2, 28, 2),
    Sketcher.Constraint("Vertical", 26, 2, 29, 2),
    Sketcher.Constraint("Vertical", 31, 2, 32, 2),
    Sketcher.Constraint("Vertical", 30, 2, 33, 2),
    Sketcher.Constraint("Vertical", 39, 2, 40, 2),
    Sketcher.Constraint("Vertical", 38, 2, 41, 2),
    Sketcher.Constraint("Vertical", 43, 2, 44, 2),
    Sketcher.Constraint("Vertical", 42, 2, 45, 2),
    Sketcher.Constraint("Vertical", 51, 2, 52, 2),
    Sketcher.Constraint("Vertical", 50, 2, 53, 2),
    Sketcher.Constraint("Vertical", 55, 2, 56, 2),
    Sketcher.Constraint("Vertical", 54, 2, 57, 2),
    Sketcher.Constraint("Equal", 11, 13),
    Sketcher.Constraint("Equal", 23, 25),
    Sketcher.Constraint("Equal", 35, 37),
    Sketcher.Constraint("Equal", 47, 49),
    Sketcher.Constraint("DistanceX", 1, 1, 1, 2, 5.0),
    Sketcher.Constraint("DistanceY", 0, 2, 0, 1, 10.0),
    Sketcher.Constraint("DistanceY", 4, 2, 4, 1, 4.0),
    Sketcher.Constraint("DistanceY", 8, 2, 8, 1, 2.0),
    Sketcher.Constraint("DistanceX", 0, 2, -1, 1, 42.0),
    Sketcher.Constraint("DistanceX", 12, 2, -1, 1, 35.0),
    Sketcher.Constraint("DistanceX", 24, 2, -1, 1, 28.0),
    Sketcher.Constraint("DistanceX", 36, 2, -1, 1, 21.0),
    Sketcher.Constraint("DistanceX", 48, 2, -1, 1, 7.0),
    Sketcher.Constraint("DistanceY", 3, 2, 4, 2, 1.0),
    Sketcher.Constraint("DistanceY", 7, 2, 8, 2, 1.0),
    Sketcher.Constraint("DistanceY", -1, 1, 0, 2, 5.95),
])
pad3 = body.newObject("PartDesign::Pad", "Pad002")
pad3.Profile = sketch5
pad3.Length = 1

sketch6 = body.newObject("Sketcher::SketchObject", "Sketch005")
sketch6.AttachmentSupport = (doc.getObject("XZ_Plane"), [""])
sketch6.MapMode = "FlatFace"
sketch6.AttachmentOffset = App.Placement(Vector(0, 0, 13), App.Rotation())
sketch6.addGeometry([
    Part.LineSegment(Vector(-7, 26, 0), Vector(9, 26, 0)),
    Part.LineSegment(Vector(9, 26, 0), Vector(9, 6, 0)),
    Part.LineSegment(Vector(9, 6, 0), Vector(-7, 6, 0)),
    Part.LineSegment(Vector(-7, 6, 0), Vector(-7, 26, 0)),
], False)
sketch6.addConstraint([
    Sketcher.Constraint("Coincident", 0, 2, 1, 1),
    Sketcher.Constraint("Coincident", 1, 2, 2, 1),
    Sketcher.Constraint("Coincident", 2, 2, 3, 1),
    Sketcher.Constraint("Coincident", 3, 2, 0, 1),
    Sketcher.Constraint("Horizontal", 0),
    Sketcher.Constraint("Vertical", 1),
    Sketcher.Constraint("Horizontal", 2),
    Sketcher.Constraint("Vertical", 3),
    Sketcher.Constraint("DistanceX", 0, 1, 0, 2, 16.0),
    Sketcher.Constraint("DistanceY", 1, 2, 1, 1, 20.0),
    Sketcher.Constraint("DistanceX", -1, 1, 0, 2, 9.0),
    Sketcher.Constraint("DistanceY", -1, 1, 0, 2, 25.95),
])
pad4 = body.newObject("PartDesign::Pad", "Pad003")
pad4.Profile = sketch6
pad4.Length = 3
pad4.Reversed = True

sketch7 = body.newObject("Sketcher::SketchObject", "Sketch006")
sketch7.AttachmentSupport = (doc.getObject("XZ_Plane"), [""])
sketch7.MapMode = "FlatFace"
sketch7.AttachmentOffset = App.Placement(Vector(0, 0, 10), App.Rotation())
sketch7.addGeometry([
    Part.ArcOfCircle(Part.Circle(Vector(-4, 8.9, 0), Vector(0, 0, 1), 1), math.radians(180), math.radians(270)),
    Part.LineSegment(Vector(-5, 8.9, 0), Vector(-5, 22.9, 0)),
    Part.ArcOfCircle(Part.Circle(Vector(-4, 22.9, 0), Vector(0, 0, 1), 1), math.radians(90), math.radians(180)),
    Part.LineSegment(Vector(-4, 23.9, 0), Vector(6, 23.9, 0)),
    Part.ArcOfCircle(Part.Circle(Vector(6, 22.9, 0), Vector(0, 0, 1), 1), math.radians(0), math.radians(90)),
    Part.LineSegment(Vector(7, 22.9, 0), Vector(7, 8.9, 0)),
    Part.ArcOfCircle(Part.Circle(Vector(6, 8.9, 0), Vector(0, 0, 1), 1), math.radians(-90), math.radians(0)),
    Part.LineSegment(Vector(6, 8, 0), Vector(-4, 8, 0)),
], False)
sketch7.addConstraint([
    Sketcher.Constraint("Tangent", 0, 1, 1, 1),
    Sketcher.Constraint("Tangent", 1, 2, 2, 2),
    Sketcher.Constraint("Tangent", 2, 1, 3, 1),
    Sketcher.Constraint("Tangent", 3, 2, 4, 2),
    Sketcher.Constraint("Tangent", 4, 1, 5, 1),
    Sketcher.Constraint("Tangent", 5, 2, 6, 2),
    Sketcher.Constraint("Tangent", 6, 1, 7, 1),
    Sketcher.Constraint("Tangent", 7, 2, 0, 2),
    Sketcher.Constraint("Vertical", 1),
    Sketcher.Constraint("Horizontal", 3),
    Sketcher.Constraint("Vertical", 5),
    Sketcher.Constraint("Horizontal", 7),
    Sketcher.Constraint("Equal", 0, 2),
    Sketcher.Constraint("Equal", 2, 4),
    Sketcher.Constraint("Equal", 4, 6),
    Sketcher.Constraint("Radius", 0, 1.0),
    Sketcher.Constraint("DistanceX", 3, 1, 3, 2, 10.0),
    Sketcher.Constraint("DistanceY", 1, 1, 1, 2, 14.0),
    Sketcher.Constraint("DistanceX", 0, 3, -1, 1, 4.0),
    Sketcher.Constraint("DistanceY", -1, 1, 0, 3, 8.95),
])
pocket3 = body.newObject("PartDesign::Pocket", "Pocket002")
pocket3.Profile = sketch7
pocket3.Length = 1
pocket3.Reversed = True

sketch8 = body.newObject("Sketcher::SketchObject", "Sketch007")
sketch8.AttachmentSupport = (doc.getObject("XZ_Plane"), [""])
sketch8.MapMode = "FlatFace"
sketch8.AttachmentOffset = App.Placement(Vector(0, 0, 13), App.Rotation())
sketch8.addGeometry([
    Part.LineSegment(Vector(-4, 8, 0), Vector(6, 8, 0)),
    Part.ArcOfCircle(Part.Circle(Vector(6, 8.9, 0), Vector(0, 0, 1), 1), math.radians(-90), math.radians(0)),
    Part.LineSegment(Vector(7, 8.9, 0), Vector(7, 22.9, 0)),
    Part.ArcOfCircle(Part.Circle(Vector(6, 22.9, 0), Vector(0, 0, 1), 1), math.radians(0), math.radians(90)),
    Part.LineSegment(Vector(6, 23.9, 0), Vector(-4, 23.9, 0)),
    Part.ArcOfCircle(Part.Circle(Vector(-4, 22.9, 0), Vector(0, 0, 1), 1), math.radians(90), math.radians(180)),
    Part.LineSegment(Vector(-5, 22.9, 0), Vector(-5, 8.9, 0)),
    Part.ArcOfCircle(Part.Circle(Vector(-4, 8.9, 0), Vector(0, 0, 1), 1), math.radians(180), math.radians(270)),
], False)
sketch8.addConstraint([
    Sketcher.Constraint("Tangent", 0, 2, 1, 1),
    Sketcher.Constraint("Tangent", 1, 2, 2, 1),
    Sketcher.Constraint("Tangent", 2, 2, 3, 1),
    Sketcher.Constraint("Tangent", 3, 2, 4, 1),
    Sketcher.Constraint("Tangent", 4, 2, 5, 1),
    Sketcher.Constraint("Tangent", 5, 2, 6, 1),
    Sketcher.Constraint("Tangent", 6, 2, 7, 1),
    Sketcher.Constraint("Tangent", 7, 2, 0, 1),
    Sketcher.Constraint("Horizontal", 0),
    Sketcher.Constraint("Vertical", 2),
    Sketcher.Constraint("Horizontal", 4),
    Sketcher.Constraint("Vertical", 6),
    Sketcher.Constraint("Equal", 1, 3),
    Sketcher.Constraint("Equal", 3, 5),
    Sketcher.Constraint("Equal", 5, 7),
    Sketcher.Constraint("Radius", 1, 1.0),
    Sketcher.Constraint("DistanceX", 0, 1, 0, 2, 10.0),
    Sketcher.Constraint("DistanceY", 2, 1, 2, 2, 14.0),
    Sketcher.Constraint("DistanceX", -1, 1, 1, 3, 6.0),
    Sketcher.Constraint("DistanceY", -1, 1, 1, 3, 8.95),
])
pocket4 = body.newObject("PartDesign::Pocket", "Pocket003")
pocket4.Profile = sketch8
pocket4.Length = 1

doc.recompute()
